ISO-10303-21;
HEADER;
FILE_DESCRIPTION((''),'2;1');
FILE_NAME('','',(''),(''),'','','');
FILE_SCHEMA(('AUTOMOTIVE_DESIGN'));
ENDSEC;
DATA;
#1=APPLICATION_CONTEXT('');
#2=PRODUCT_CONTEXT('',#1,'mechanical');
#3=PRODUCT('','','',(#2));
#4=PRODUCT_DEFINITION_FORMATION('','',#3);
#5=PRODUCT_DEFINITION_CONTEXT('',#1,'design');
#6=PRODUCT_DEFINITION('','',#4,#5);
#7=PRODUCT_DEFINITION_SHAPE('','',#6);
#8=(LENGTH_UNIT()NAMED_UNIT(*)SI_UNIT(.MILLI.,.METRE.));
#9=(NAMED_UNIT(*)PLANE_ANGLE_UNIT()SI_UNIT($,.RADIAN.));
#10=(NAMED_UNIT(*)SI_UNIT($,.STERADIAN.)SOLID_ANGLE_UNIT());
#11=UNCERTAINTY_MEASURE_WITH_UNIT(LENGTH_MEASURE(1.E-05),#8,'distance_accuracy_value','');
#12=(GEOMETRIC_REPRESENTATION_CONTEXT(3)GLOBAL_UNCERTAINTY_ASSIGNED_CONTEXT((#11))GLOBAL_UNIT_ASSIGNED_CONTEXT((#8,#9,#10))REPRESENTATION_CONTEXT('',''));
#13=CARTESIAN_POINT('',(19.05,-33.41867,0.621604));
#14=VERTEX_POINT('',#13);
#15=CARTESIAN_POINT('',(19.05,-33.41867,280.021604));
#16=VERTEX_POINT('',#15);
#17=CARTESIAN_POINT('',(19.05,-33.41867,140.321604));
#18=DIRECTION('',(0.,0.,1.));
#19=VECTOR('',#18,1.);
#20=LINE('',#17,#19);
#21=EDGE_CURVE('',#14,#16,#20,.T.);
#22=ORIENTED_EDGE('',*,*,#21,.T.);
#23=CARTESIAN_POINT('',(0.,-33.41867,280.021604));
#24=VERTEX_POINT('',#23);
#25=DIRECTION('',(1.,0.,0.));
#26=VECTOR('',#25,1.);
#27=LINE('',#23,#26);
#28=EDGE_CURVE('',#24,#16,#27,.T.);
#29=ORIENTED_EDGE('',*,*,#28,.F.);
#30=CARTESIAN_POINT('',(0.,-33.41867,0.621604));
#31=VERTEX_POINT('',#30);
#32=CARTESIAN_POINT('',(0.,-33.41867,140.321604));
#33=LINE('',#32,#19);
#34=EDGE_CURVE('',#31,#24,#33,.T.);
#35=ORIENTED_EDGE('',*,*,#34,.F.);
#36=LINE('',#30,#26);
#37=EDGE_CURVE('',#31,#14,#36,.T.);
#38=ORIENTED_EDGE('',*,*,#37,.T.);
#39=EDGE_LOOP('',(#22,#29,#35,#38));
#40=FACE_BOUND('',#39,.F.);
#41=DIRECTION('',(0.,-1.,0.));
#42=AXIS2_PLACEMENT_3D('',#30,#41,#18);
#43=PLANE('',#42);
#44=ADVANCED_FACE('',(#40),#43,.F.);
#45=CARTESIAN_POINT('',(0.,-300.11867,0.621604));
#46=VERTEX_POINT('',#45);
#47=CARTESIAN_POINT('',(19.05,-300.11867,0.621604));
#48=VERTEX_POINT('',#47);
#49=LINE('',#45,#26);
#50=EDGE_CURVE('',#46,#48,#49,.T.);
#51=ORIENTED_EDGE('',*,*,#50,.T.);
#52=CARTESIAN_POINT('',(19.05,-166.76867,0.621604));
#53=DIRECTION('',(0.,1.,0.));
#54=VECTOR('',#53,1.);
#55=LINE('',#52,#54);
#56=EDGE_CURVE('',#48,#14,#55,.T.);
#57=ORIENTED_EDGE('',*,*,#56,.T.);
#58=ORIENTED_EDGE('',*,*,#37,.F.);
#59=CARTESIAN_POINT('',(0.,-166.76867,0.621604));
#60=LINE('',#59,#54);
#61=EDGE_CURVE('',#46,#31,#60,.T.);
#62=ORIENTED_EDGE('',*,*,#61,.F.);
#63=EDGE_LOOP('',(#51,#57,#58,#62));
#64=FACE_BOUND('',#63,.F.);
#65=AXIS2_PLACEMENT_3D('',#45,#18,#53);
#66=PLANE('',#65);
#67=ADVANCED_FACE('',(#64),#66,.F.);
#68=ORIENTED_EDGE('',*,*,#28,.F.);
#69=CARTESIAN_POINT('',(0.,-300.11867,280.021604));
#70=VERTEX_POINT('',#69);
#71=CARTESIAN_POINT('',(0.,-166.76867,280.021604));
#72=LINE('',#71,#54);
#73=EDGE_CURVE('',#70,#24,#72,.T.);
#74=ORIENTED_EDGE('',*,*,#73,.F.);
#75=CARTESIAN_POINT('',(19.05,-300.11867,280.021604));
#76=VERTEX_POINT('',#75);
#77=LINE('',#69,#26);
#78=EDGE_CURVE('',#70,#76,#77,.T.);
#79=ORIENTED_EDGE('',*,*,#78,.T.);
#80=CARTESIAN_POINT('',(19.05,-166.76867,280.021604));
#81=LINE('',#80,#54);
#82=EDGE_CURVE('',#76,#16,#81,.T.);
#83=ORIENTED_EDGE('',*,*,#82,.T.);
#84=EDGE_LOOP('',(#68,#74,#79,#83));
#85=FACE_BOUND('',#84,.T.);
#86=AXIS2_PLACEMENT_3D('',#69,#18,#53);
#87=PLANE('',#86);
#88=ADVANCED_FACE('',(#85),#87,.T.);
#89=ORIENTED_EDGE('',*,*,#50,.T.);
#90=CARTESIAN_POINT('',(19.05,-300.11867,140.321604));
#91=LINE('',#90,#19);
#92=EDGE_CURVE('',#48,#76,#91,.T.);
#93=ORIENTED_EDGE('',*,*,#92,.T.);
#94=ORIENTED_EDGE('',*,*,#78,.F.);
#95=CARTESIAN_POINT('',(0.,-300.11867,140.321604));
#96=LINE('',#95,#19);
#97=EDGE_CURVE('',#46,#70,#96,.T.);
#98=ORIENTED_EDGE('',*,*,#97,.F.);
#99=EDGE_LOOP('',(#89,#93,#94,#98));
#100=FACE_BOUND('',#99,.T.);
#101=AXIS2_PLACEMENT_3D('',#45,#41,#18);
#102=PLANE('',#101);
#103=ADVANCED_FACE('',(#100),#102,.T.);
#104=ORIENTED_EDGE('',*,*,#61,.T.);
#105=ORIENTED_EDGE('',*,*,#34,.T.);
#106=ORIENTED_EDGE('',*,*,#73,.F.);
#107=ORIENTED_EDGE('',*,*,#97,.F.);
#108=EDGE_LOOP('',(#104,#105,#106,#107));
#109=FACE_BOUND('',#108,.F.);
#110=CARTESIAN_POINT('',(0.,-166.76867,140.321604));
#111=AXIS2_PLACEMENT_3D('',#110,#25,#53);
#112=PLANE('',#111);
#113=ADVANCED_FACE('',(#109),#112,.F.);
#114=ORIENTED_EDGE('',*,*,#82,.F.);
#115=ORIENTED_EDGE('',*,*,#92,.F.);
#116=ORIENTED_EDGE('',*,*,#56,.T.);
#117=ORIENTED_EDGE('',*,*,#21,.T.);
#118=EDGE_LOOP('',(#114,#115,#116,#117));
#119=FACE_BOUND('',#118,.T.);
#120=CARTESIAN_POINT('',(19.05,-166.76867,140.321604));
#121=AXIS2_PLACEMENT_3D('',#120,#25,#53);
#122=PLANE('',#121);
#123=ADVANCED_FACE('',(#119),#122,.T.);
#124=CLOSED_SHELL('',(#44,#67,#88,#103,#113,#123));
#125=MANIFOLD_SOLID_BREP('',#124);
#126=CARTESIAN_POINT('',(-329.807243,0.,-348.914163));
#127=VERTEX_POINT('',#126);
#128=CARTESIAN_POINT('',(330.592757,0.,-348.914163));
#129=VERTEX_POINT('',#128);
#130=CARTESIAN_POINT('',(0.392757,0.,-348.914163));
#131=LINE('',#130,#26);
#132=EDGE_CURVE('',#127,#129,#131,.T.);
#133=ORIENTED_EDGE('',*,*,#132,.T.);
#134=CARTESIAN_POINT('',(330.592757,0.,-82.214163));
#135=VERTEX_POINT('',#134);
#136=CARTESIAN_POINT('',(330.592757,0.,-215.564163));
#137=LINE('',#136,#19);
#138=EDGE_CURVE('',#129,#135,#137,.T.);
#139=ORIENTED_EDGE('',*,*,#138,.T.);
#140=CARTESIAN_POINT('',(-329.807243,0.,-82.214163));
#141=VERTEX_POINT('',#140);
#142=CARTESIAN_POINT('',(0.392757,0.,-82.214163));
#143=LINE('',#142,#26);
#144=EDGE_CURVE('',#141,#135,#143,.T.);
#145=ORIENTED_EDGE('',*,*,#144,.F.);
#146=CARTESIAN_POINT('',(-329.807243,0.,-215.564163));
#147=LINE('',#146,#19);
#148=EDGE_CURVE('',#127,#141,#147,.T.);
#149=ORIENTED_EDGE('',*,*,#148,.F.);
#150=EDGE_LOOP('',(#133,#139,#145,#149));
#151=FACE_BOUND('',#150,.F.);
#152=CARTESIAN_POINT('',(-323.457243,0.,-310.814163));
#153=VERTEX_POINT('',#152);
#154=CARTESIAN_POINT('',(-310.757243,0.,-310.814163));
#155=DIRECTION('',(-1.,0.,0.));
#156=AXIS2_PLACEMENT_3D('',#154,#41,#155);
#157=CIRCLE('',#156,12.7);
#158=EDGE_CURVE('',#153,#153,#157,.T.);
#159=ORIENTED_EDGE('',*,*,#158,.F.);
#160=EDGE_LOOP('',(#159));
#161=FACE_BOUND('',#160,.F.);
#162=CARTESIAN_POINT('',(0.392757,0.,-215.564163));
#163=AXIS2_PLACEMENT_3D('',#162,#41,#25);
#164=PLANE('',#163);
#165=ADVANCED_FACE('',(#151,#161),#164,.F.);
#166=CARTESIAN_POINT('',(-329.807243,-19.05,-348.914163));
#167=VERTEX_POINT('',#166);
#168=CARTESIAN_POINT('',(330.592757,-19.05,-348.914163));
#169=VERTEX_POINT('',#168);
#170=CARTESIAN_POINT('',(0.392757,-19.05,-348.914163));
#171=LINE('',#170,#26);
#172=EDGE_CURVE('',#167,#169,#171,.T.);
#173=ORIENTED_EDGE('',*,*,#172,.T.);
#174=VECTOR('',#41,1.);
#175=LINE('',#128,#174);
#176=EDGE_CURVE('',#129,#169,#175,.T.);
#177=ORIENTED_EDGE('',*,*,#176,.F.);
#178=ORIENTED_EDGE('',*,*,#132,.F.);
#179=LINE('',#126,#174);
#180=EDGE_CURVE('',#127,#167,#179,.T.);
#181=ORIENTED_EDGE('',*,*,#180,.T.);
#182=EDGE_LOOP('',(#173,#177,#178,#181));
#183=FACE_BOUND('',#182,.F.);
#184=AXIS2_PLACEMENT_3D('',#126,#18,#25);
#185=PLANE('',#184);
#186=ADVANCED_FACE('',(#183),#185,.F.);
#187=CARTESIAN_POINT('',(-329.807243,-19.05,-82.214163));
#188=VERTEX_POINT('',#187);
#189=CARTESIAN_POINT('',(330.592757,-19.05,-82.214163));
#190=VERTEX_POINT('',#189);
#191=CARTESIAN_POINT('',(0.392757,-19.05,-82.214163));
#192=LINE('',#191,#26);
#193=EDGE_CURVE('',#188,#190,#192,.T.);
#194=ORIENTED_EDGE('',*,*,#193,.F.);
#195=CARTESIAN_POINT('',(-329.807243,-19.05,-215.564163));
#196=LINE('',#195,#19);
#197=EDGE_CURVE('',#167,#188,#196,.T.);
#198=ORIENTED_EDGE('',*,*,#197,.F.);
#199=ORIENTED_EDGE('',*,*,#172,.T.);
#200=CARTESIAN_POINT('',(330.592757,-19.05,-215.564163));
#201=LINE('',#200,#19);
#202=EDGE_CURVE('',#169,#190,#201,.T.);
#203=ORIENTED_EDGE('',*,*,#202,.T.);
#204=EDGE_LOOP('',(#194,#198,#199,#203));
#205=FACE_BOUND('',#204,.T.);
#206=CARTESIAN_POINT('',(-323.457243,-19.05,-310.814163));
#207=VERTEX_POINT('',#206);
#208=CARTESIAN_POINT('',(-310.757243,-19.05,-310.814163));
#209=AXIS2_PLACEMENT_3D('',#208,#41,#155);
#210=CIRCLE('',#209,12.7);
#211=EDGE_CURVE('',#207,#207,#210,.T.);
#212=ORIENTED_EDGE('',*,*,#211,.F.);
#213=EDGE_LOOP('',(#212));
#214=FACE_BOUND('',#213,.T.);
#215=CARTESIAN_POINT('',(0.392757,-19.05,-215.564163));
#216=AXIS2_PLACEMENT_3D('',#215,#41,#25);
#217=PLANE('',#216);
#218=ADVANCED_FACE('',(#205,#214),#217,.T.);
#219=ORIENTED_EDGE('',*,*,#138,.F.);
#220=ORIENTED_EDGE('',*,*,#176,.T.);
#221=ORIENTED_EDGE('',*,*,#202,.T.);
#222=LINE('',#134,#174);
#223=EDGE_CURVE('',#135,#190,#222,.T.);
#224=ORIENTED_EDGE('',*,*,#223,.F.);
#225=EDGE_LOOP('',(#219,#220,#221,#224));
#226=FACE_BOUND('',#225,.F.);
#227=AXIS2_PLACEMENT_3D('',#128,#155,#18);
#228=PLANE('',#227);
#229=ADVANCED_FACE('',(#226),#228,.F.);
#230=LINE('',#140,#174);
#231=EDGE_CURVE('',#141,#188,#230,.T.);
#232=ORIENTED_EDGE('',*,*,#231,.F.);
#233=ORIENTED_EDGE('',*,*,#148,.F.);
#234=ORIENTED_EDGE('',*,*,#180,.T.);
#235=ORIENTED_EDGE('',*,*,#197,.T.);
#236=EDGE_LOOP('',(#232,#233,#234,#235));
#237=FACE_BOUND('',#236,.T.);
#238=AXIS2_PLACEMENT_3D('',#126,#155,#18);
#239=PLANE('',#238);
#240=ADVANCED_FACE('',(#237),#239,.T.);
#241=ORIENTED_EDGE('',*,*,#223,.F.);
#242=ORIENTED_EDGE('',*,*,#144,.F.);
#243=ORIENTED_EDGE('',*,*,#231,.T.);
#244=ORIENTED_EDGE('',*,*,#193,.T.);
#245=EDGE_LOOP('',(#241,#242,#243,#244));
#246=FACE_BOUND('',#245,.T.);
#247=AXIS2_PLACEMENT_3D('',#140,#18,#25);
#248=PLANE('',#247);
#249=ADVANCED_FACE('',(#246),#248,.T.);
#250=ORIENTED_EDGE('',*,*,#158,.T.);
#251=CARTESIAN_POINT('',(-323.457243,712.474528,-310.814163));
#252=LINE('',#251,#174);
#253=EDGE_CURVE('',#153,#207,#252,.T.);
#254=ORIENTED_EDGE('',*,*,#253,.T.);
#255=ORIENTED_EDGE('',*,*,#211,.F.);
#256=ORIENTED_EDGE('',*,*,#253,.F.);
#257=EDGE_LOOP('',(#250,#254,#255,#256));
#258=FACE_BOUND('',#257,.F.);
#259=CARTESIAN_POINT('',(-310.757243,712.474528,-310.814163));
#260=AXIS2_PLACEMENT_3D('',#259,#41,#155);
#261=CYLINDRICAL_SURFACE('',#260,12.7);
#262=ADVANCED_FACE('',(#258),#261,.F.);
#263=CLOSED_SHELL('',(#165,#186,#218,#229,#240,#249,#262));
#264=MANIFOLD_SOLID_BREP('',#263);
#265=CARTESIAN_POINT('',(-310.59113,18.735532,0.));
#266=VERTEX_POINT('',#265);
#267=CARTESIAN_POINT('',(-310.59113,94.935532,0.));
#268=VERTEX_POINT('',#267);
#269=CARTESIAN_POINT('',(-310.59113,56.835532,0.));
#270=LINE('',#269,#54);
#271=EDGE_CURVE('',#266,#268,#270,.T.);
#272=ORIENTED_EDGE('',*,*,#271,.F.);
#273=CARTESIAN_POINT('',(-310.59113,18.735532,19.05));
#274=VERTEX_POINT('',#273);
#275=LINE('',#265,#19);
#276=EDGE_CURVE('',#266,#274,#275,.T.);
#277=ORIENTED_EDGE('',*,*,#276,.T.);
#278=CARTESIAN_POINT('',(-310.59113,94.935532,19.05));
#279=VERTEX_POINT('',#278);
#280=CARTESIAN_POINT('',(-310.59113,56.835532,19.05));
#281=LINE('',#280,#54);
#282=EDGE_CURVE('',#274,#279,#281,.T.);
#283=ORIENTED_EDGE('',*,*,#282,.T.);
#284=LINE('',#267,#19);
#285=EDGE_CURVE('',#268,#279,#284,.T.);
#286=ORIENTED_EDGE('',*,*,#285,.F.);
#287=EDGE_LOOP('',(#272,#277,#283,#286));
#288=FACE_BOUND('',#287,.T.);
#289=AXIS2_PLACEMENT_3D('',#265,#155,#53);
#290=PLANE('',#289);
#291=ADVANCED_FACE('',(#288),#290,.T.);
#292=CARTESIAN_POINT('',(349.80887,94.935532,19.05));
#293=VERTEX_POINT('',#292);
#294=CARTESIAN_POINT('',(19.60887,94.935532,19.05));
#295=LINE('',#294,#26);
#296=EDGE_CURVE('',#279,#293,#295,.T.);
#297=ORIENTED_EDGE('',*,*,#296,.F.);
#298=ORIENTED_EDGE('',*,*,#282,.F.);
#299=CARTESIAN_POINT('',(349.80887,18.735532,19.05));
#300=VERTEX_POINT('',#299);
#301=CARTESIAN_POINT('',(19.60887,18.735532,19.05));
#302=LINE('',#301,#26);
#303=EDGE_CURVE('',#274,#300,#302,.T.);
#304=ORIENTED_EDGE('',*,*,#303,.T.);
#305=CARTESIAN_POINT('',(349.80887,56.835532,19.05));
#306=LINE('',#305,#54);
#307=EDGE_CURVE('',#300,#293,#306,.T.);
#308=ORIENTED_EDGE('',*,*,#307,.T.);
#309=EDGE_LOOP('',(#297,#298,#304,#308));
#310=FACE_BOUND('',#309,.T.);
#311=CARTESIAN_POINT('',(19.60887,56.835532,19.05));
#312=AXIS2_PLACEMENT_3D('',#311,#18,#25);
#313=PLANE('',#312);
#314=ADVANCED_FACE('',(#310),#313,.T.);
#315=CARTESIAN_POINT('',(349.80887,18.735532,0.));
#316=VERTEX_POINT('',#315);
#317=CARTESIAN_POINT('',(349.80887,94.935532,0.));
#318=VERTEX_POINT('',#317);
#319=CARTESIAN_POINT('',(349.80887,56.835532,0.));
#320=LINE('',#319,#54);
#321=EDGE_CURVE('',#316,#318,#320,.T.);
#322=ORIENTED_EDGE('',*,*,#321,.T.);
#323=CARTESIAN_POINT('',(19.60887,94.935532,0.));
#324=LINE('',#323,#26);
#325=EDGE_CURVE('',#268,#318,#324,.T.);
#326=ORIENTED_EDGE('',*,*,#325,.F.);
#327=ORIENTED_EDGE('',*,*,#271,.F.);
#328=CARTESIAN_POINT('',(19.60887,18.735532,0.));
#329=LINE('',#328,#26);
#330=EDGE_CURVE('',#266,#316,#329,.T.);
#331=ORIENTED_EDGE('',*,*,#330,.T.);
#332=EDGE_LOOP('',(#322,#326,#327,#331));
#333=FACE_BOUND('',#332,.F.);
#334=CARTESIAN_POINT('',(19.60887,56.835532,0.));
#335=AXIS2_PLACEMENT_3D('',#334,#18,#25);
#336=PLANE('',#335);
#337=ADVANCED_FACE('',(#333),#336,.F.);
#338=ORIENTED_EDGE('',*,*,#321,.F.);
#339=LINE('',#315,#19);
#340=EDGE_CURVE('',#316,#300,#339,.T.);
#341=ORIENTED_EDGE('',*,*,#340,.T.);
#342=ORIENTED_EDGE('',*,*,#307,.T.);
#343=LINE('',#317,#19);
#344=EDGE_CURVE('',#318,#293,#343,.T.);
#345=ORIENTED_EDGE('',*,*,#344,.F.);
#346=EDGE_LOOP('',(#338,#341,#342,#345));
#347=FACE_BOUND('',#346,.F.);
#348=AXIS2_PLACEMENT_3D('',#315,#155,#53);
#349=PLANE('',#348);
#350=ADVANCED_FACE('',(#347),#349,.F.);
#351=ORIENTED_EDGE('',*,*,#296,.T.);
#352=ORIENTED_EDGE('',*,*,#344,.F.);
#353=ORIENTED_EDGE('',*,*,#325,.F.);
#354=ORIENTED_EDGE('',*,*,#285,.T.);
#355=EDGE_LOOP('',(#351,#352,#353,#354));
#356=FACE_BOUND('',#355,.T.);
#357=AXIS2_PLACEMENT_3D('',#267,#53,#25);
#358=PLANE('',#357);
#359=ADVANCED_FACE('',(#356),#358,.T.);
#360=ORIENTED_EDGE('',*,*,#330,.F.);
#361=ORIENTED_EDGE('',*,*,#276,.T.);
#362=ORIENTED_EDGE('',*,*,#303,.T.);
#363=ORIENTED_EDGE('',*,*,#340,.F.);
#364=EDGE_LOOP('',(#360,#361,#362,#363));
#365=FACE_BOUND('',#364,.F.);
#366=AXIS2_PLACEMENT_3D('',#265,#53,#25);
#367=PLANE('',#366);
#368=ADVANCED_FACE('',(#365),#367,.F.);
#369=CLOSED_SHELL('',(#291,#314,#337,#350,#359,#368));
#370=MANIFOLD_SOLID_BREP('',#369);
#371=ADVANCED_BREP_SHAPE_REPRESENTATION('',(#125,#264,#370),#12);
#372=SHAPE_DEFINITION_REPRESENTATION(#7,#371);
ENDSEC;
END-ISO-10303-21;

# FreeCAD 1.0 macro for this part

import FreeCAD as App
import Part
import Sketcher

V = App.Vector
Q = App.Units.Quantity

doc = App.newDocument("Part")
params = doc.addObject("Spreadsheet::Sheet", "Params")
for row, (alias, value) in enumerate([
    ("sketch1_width", "26 in"),
    ("sketch1_height", "10.5 in"),
    ("pad1_length", "0.75 in"),
    ("sketch2_diameter", "1 in"),
    ("hole_diameter", "1 in"),
    ("sketch3_width", "26 in"),
    ("sketch3_height", "3 in"),
    ("pad2_length", "0.75 in"),
    ("sketch4_height", "11 in"),
    ("sketch4_width", "10.5 in"),
    ("pad3_length", "0.75 in"),
], start=1):
    params.set(f"A{row}", alias)
    params.set(f"B{row}", "=" + value)
    params.setAlias(f"B{row}", alias)

body = doc.addObject("PartDesign::Body", "Body")

sketch1 = doc.addObject("Sketcher::SketchObject", "Sketch")
body.addObject(sketch1)
sketch1.AttachmentSupport = (doc.XZ_Plane, [""])
sketch1.MapMode = "FlatFace"
sketch1.addGeometry([
    Part.LineSegment(V(-329.807243, -82.214163, 0), V(-329.807243, -348.914163, 0)),
    Part.LineSegment(V(-329.807243, -348.914163, 0), V(330.592757, -348.914163, 0)),
    Part.LineSegment(V(330.592757, -348.914163, 0), V(330.592757, -82.214163, 0)),
    Part.LineSegment(V(330.592757, -82.214163, 0), V(-329.807243, -82.214163, 0)),
], False)
sketch1.addConstraint([
    Sketcher.Constraint("Coincident", 0, 2, 1, 1),
    Sketcher.Constraint("Coincident", 1, 2, 2, 1),
    Sketcher.Constraint("Coincident", 2, 2, 3, 1),
    Sketcher.Constraint("Coincident", 3, 2, 0, 1),
    Sketcher.Constraint("Vertical", 0),
    Sketcher.Constraint("Horizontal", 1),
    Sketcher.Constraint("Vertical", 2),
    Sketcher.Constraint("Horizontal", 3),
    Sketcher.Constraint("DistanceX", 1, 1, 1, 2, Q("26 in")),
    Sketcher.Constraint("DistanceY", 0, 2, 0, 1, Q("10.5 in")),
    Sketcher.Constraint("DistanceX", 0, 2, -1, 1, Q("329.807243 mm")),
    Sketcher.Constraint("DistanceY", 0, 2, -1, 1, Q("348.914163 mm")),
])
sketch1.setExpression("Constraints[8]", "Params.sketch1_width")
sketch1.setExpression("Constraints[9]", "Params.sketch1_height")
pad1 = doc.addObject("PartDesign::Pad", "Pad")
body.addObject(pad1)
pad1.Profile = sketch1
pad1.setExpression("Length", "Params.pad1_length")

sketch2 = doc.addObject("Sketcher::SketchObject", "Sketch001")
body.addObject(sketch2)
sketch2.AttachmentSupport = (doc.XZ_Plane, [""])
sketch2.MapMode = "FlatFace"
sketch2.addGeometry(Part.Circle(V(-310.757243, -310.814163, 0), V(0, 0, 1), 12.7), False)
sketch2.addConstraint([
    Sketcher.Constraint("Diameter", 0, Q("1 in")),
    Sketcher.Constraint("DistanceX", 0, 3, -1, 1, Q("310.757243 mm")),
    Sketcher.Constraint("DistanceY", 0, 3, -1, 1, Q("310.814163 mm")),
])
sketch2.setExpression("Constraints[0]", "Params.sketch2_diameter")
doc.recompute()
hole = doc.addObject("PartDesign::Hole", "Hole")
body.addObject(hole)
hole.Profile = sketch2
hole.ThreadType = "None"
hole.setExpression("Diameter", "Params.hole_diameter")
hole.DepthType = "ThroughAll"
hole.Reversed = True
body2 = doc.addObject("PartDesign::Body", "Body001")

sketch3 = doc.addObject("Sketcher::SketchObject", "Sketch002")
body2.addObject(sketch3)
sketch3.AttachmentSupport = (doc.getObject("XY_Plane001"), [""])
sketch3.MapMode = "FlatFace"
sketch3.addGeometry([
    Part.LineSegment(V(-310.59113, 94.935532, 0), V(-310.59113, 18.735532, 0)),
    Part.LineSegment(V(-310.59113, 18.735532, 0), V(349.80887, 18.735532, 0)),
    Part.LineSegment(V(349.80887, 18.735532, 0), V(349.80887, 94.935532, 0)),
    Part.LineSegment(V(349.80887, 94.935532, 0), V(-310.59113, 94.935532, 0)),
], False)
sketch3.addConstraint([
    Sketcher.Constraint("Coincident", 0, 2, 1, 1),
    Sketcher.Constraint("Coincident", 1, 2, 2, 1),
    Sketcher.Constraint("Coincident", 2, 2, 3, 1),
    Sketcher.Constraint("Coincident", 3, 2, 0, 1),
    Sketcher.Constraint("Vertical", 0),
    Sketcher.Constraint("Horizontal", 1),
    Sketcher.Constraint("Vertical", 2),
    Sketcher.Constraint("Horizontal", 3),
    Sketcher.Constraint("DistanceX", 1, 1, 1, 2, Q("26 in")),
    Sketcher.Constraint("DistanceY", 0, 2, 0, 1, Q("3 in")),
    Sketcher.Constraint("DistanceX", 0, 2, -1, 1, Q("310.59113 mm")),
    Sketcher.Constraint("DistanceY", -1, 1, 0, 2, Q("18.735532 mm")),
])
sketch3.setExpression("Constraints[8]", "Params.sketch3_width")
sketch3.setExpression("Constraints[9]", "Params.sketch3_height")
pad2 = doc.addObject("PartDesign::Pad", "Pad001")
body2.addObject(pad2)
pad2.Profile = sketch3
pad2.setExpression("Length", "Params.pad2_length")
body3 = doc.addObject("PartDesign::Body", "Body002")

sketch4 = doc.addObject("Sketcher::SketchObject", "Sketch003")
body3.addObject(sketch4)
sketch4.AttachmentSupport = (doc.getObject("YZ_Plane002"), [""])
sketch4.MapMode = "FlatFace"
sketch4.addGeometry([
    Part.LineSegment(V(-300.11867, 280.021604, 0), V(-300.11867, 0.621604, 0)),
    Part.LineSegment(V(-300.11867, 0.621604, 0), V(-33.41867, 0.621604, 0)),
    Part.LineSegment(V(-33.41867, 0.621604, 0), V(-33.41867, 280.021604, 0)),
    Part.LineSegment(V(-33.41867, 280.021604, 0), V(-300.11867, 280.021604, 0)),
], False)
sketch4.addConstraint([
    Sketcher.Constraint("Coincident", 0, 2, 1, 1),
    Sketcher.Constraint("Coincident", 1, 2, 2, 1),
    Sketcher.Constraint("Coincident", 2, 2, 3, 1),
    Sketcher.Constraint("Coincident", 3, 2, 0, 1),
    Sketcher.Constraint("Vertical", 0),
    Sketcher.Constraint("Horizontal", 1),
    Sketcher.Constraint("Vertical", 2),
    Sketcher.Constraint("Horizontal", 3),
    Sketcher.Constraint("DistanceY", 0, 2, 0, 1, Q("11 in")),
    Sketcher.Constraint("DistanceX", 1, 1, 1, 2, Q("10.5 in")),
    Sketcher.Constraint("DistanceX", 0, 2, -1, 1, Q("300.11867 mm")),
    Sketcher.Constraint("DistanceY", -1, 1, 0, 2, Q("0.621604 mm")),
])
sketch4.setExpression("Constraints[8]", "Params.sketch4_height")
sketch4.setExpression("Constraints[9]", "Params.sketch4_width")
pad3 = doc.addObject("PartDesign::Pad", "Pad002")
body3.addObject(pad3)
pad3.Profile = sketch4
pad3.setExpression("Length", "Params.pad3_length")

doc.recompute()
